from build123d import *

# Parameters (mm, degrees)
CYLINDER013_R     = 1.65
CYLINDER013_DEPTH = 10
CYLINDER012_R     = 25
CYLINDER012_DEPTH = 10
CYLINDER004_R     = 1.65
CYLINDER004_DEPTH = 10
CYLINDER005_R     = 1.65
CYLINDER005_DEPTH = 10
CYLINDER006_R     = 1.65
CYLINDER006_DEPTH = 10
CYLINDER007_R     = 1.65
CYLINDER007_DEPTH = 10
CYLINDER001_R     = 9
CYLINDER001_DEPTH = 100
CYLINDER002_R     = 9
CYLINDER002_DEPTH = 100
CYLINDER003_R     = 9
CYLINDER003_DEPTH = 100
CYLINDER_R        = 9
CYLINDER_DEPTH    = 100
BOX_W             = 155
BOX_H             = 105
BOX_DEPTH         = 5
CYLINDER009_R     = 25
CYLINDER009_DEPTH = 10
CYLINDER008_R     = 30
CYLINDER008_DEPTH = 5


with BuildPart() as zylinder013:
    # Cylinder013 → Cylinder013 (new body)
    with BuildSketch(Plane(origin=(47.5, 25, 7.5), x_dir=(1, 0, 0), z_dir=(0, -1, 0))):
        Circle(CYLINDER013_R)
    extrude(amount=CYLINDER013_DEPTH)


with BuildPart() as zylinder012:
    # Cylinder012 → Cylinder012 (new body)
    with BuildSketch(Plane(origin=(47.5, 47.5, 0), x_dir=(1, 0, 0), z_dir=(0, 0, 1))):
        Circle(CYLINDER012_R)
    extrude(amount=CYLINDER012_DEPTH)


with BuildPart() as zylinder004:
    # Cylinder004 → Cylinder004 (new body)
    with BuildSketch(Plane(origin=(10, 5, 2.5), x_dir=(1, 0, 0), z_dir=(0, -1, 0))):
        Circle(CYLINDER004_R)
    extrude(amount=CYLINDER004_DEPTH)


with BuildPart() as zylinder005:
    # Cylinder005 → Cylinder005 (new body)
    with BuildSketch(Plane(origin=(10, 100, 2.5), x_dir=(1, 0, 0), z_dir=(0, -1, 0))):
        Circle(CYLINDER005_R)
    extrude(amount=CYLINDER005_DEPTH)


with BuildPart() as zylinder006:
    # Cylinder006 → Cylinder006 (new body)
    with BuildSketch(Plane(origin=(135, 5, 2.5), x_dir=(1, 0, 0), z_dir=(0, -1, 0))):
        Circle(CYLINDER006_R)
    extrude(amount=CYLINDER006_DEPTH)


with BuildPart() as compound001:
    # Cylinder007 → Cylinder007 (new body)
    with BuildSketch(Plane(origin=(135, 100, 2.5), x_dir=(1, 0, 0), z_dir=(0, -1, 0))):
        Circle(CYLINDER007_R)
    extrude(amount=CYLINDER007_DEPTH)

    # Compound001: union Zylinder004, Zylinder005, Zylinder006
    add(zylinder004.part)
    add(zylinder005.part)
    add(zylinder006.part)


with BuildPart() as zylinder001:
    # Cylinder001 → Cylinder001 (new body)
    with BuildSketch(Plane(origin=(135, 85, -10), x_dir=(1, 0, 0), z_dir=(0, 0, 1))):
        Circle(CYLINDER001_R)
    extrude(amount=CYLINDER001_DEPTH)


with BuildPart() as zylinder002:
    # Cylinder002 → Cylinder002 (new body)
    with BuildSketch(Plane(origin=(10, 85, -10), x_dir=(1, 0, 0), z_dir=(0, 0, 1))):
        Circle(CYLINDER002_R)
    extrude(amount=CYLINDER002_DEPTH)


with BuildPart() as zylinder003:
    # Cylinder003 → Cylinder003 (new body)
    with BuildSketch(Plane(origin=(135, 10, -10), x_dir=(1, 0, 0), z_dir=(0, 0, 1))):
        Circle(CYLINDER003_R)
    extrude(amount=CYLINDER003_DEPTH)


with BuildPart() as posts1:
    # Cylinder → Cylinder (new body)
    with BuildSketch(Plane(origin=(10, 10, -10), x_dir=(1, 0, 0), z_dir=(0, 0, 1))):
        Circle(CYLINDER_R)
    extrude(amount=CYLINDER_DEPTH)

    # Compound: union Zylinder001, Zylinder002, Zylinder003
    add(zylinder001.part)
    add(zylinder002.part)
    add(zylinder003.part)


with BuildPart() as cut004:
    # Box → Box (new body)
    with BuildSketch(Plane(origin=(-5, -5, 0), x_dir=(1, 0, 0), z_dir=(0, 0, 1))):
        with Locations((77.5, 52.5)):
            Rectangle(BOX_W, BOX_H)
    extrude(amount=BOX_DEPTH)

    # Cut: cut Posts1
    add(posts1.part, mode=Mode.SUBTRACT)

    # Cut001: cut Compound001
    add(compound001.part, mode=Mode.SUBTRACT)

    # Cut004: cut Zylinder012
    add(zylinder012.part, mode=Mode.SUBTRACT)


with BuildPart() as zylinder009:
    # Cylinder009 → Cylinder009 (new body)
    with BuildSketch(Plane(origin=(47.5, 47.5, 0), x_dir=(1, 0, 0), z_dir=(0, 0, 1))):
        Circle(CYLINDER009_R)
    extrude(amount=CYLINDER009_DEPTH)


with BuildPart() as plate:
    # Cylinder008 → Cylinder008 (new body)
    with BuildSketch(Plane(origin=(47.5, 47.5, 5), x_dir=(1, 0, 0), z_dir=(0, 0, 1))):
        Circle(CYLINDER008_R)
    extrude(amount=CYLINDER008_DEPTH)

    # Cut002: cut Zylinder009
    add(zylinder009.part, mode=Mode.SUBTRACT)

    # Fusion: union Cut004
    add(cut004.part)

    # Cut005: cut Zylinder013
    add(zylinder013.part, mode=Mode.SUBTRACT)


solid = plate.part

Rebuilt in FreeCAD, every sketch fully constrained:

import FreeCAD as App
import Part
import Sketcher

V = App.Vector
Q = App.Units.Quantity

doc = App.newDocument("Part")
body = doc.addObject("PartDesign::Body", "Body")

# Sketch on XZ plane
sketch1 = body.newObject("Sketcher::SketchObject", "Sketch")
sketch1.AttachmentSupport = (doc.getObject("XZ_Plane"), [""])
sketch1.MapMode = "FlatFace"
sketch1.AttachmentOffset = App.Placement(V(0, 0, -25), App.Rotation())
sketch1.addGeometry(Part.Circle(V(47.5, 7.5, 0), V(0, 0, 1), 1.65), False)
sketch1.addConstraint([
    Sketcher.Constraint("Diameter", 0, Q("3.3 mm")),
    Sketcher.Constraint("DistanceX", -1, 1, 0, 3, Q("47.5 mm")),
    Sketcher.Constraint("DistanceY", -1, 1, 0, 3, Q("7.5 mm")),
])
pad1 = body.newObject("PartDesign::Pad", "Pad")
pad1.Profile = sketch1
pad1.Length = 10
body2 = doc.addObject("PartDesign::Body", "Body001")

# Sketch on XY plane
sketch2 = body2.newObject("Sketcher::SketchObject", "Sketch001")
sketch2.AttachmentSupport = (doc.getObject("XY_Plane001"), [""])
sketch2.MapMode = "FlatFace"
sketch2.addGeometry(Part.Circle(V(47.5, 47.5, 0), V(0, 0, 1), 25), False)
sketch2.addConstraint([
    Sketcher.Constraint("Diameter", 0, Q("50 mm")),
    Sketcher.Constraint("DistanceX", -1, 1, 0, 3, Q("47.5 mm")),
    Sketcher.Constraint("DistanceY", -1, 1, 0, 3, Q("47.5 mm")),
])
pad2 = body2.newObject("PartDesign::Pad", "Pad001")
pad2.Profile = sketch2
pad2.Length = 10
body3 = doc.addObject("PartDesign::Body", "Body002")

# Sketch on XZ plane
sketch3 = body3.newObject("Sketcher::SketchObject", "Sketch002")
sketch3.AttachmentSupport = (doc.getObject("XZ_Plane002"), [""])
sketch3.MapMode = "FlatFace"
sketch3.AttachmentOffset = App.Placement(V(0, 0, -5), App.Rotation())
sketch3.addGeometry(Part.Circle(V(10, 2.5, 0), V(0, 0, 1), 1.65), False)
sketch3.addConstraint([
    Sketcher.Constraint("Diameter", 0, Q("3.3 mm")),
    Sketcher.Constraint("DistanceX", -1, 1, 0, 3, Q("10 mm")),
    Sketcher.Constraint("DistanceY", -1, 1, 0, 3, Q("2.5 mm")),
])
pad3 = body3.newObject("PartDesign::Pad", "Pad002")
pad3.Profile = sketch3
pad3.Length = 10
body4 = doc.addObject("PartDesign::Body", "Body003")

# Sketch on XZ plane
sketch4 = body4.newObject("Sketcher::SketchObject", "Sketch003")
sketch4.AttachmentSupport = (doc.getObject("XZ_Plane003"), [""])
sketch4.MapMode = "FlatFace"
sketch4.AttachmentOffset = App.Placement(V(0, 0, -100), App.Rotation())
sketch4.addGeometry(Part.Circle(V(10, 2.5, 0), V(0, 0, 1), 1.65), False)
sketch4.addConstraint([
    Sketcher.Constraint("Diameter", 0, Q("3.3 mm")),
    Sketcher.Constraint("DistanceX", -1, 1, 0, 3, Q("10 mm")),
    Sketcher.Constraint("DistanceY", -1, 1, 0, 3, Q("2.5 mm")),
])
pad4 = body4.newObject("PartDesign::Pad", "Pad003")
pad4.Profile = sketch4
pad4.Length = 10
body5 = doc.addObject("PartDesign::Body", "Body004")

# Sketch on XZ plane
sketch5 = body5.newObject("Sketcher::SketchObject", "Sketch004")
sketch5.AttachmentSupport = (doc.getObject("XZ_Plane004"), [""])
sketch5.MapMode = "FlatFace"
sketch5.AttachmentOffset = App.Placement(V(0, 0, -5), App.Rotation())
sketch5.addGeometry(Part.Circle(V(135, 2.5, 0), V(0, 0, 1), 1.65), False)
sketch5.addConstraint([
    Sketcher.Constraint("Diameter", 0, Q("3.3 mm")),
    Sketcher.Constraint("DistanceX", -1, 1, 0, 3, Q("135 mm")),
    Sketcher.Constraint("DistanceY", -1, 1, 0, 3, Q("2.5 mm")),
])
pad5 = body5.newObject("PartDesign::Pad", "Pad004")
pad5.Profile = sketch5
pad5.Length = 10
body6 = doc.addObject("PartDesign::Body", "Body005")
body6.AllowCompound = True

# Sketch on XZ plane
sketch6 = body6.newObject("Sketcher::SketchObject", "Sketch005")
sketch6.AttachmentSupport = (doc.getObject("XZ_Plane005"), [""])
sketch6.MapMode = "FlatFace"
sketch6.AttachmentOffset = App.Placement(V(0, 0, -100), App.Rotation())
sketch6.addGeometry(Part.Circle(V(135, 2.5, 0), V(0, 0, 1), 1.65), False)
sketch6.addConstraint([
    Sketcher.Constraint("Diameter", 0, Q("3.3 mm")),
    Sketcher.Constraint("DistanceX", -1, 1, 0, 3, Q("135 mm")),
    Sketcher.Constraint("DistanceY", -1, 1, 0, 3, Q("2.5 mm")),
])
pad6 = body6.newObject("PartDesign::Pad", "Pad005")
pad6.Profile = sketch6
pad6.Length = 10
doc.recompute()

boolean = body6.newObject("PartDesign::Boolean", "Boolean")
boolean.Type = "Fuse"
boolean.addObjects([body3])
doc.recompute()

boolean2 = body6.newObject("PartDesign::Boolean", "Boolean001")
boolean2.Type = "Fuse"
boolean2.addObjects([body4])
doc.recompute()

boolean3 = body6.newObject("PartDesign::Boolean", "Boolean002")
boolean3.Type = "Fuse"
boolean3.addObjects([body5])
body7 = doc.addObject("PartDesign::Body", "Body006")

# Sketch on XY plane
sketch7 = body7.newObject("Sketcher::SketchObject", "Sketch006")
sketch7.AttachmentSupport = (doc.getObject("XY_Plane006"), [""])
sketch7.MapMode = "FlatFace"
sketch7.AttachmentOffset = App.Placement(V(0, 0, -10), App.Rotation())
sketch7.addGeometry(Part.Circle(V(135, 85, 0), V(0, 0, 1), 9), False)
sketch7.addConstraint([
    Sketcher.Constraint("Diameter", 0, Q("18 mm")),
    Sketcher.Constraint("DistanceX", -1, 1, 0, 3, Q("135 mm")),
    Sketcher.Constraint("DistanceY", -1, 1, 0, 3, Q("85 mm")),
])
pad7 = body7.newObject("PartDesign::Pad", "Pad006")
pad7.Profile = sketch7
pad7.Length = 100
body8 = doc.addObject("PartDesign::Body", "Body007")

# Sketch on XY plane
sketch8 = body8.newObject("Sketcher::SketchObject", "Sketch007")
sketch8.AttachmentSupport = (doc.getObject("XY_Plane007"), [""])
sketch8.MapMode = "FlatFace"
sketch8.AttachmentOffset = App.Placement(V(0, 0, -10), App.Rotation())
sketch8.addGeometry(Part.Circle(V(10, 85, 0), V(0, 0, 1), 9), False)
sketch8.addConstraint([
    Sketcher.Constraint("Diameter", 0, Q("18 mm")),
    Sketcher.Constraint("DistanceX", -1, 1, 0, 3, Q("10 mm")),
    Sketcher.Constraint("DistanceY", -1, 1, 0, 3, Q("85 mm")),
])
pad8 = body8.newObject("PartDesign::Pad", "Pad007")
pad8.Profile = sketch8
pad8.Length = 100
body9 = doc.addObject("PartDesign::Body", "Body008")

# Sketch on XY plane
sketch9 = body9.newObject("Sketcher::SketchObject", "Sketch008")
sketch9.AttachmentSupport = (doc.getObject("XY_Plane008"), [""])
sketch9.MapMode = "FlatFace"
sketch9.AttachmentOffset = App.Placement(V(0, 0, -10), App.Rotation())
sketch9.addGeometry(Part.Circle(V(135, 10, 0), V(0, 0, 1), 9), False)
sketch9.addConstraint([
    Sketcher.Constraint("Diameter", 0, Q("18 mm")),
    Sketcher.Constraint("DistanceX", -1, 1, 0, 3, Q("135 mm")),
    Sketcher.Constraint("DistanceY", -1, 1, 0, 3, Q("10 mm")),
])
pad9 = body9.newObject("PartDesign::Pad", "Pad008")
pad9.Profile = sketch9
pad9.Length = 100
body10 = doc.addObject("PartDesign::Body", "Body009")
body10.AllowCompound = True

# Sketch on XY plane
sketch10 = body10.newObject("Sketcher::SketchObject", "Sketch009")
sketch10.AttachmentSupport = (doc.getObject("XY_Plane009"), [""])
sketch10.MapMode = "FlatFace"
sketch10.AttachmentOffset = App.Placement(V(0, 0, -10), App.Rotation())
sketch10.addGeometry(Part.Circle(V(10, 10, 0), V(0, 0, 1), 9), False)
sketch10.addConstraint([
    Sketcher.Constraint("Diameter", 0, Q("18 mm")),
    Sketcher.Constraint("DistanceX", -1, 1, 0, 3, Q("10 mm")),
    Sketcher.Constraint("DistanceY", -1, 1, 0, 3, Q("10 mm")),
])
pad10 = body10.newObject("PartDesign::Pad", "Pad009")
pad10.Profile = sketch10
pad10.Length = 100
doc.recompute()

boolean4 = body10.newObject("PartDesign::Boolean", "Boolean003")
boolean4.Type = "Fuse"
boolean4.addObjects([body7])
doc.recompute()

boolean5 = body10.newObject("PartDesign::Boolean", "Boolean004")
boolean5.Type = "Fuse"
boolean5.addObjects([body8])
doc.recompute()

boolean6 = body10.newObject("PartDesign::Boolean", "Boolean005")
boolean6.Type = "Fuse"
boolean6.addObjects([body9])
body11 = doc.addObject("PartDesign::Body", "Body010")

# Sketch on XY plane
sketch11 = body11.newObject("Sketcher::SketchObject", "Sketch010")
sketch11.AttachmentSupport = (doc.getObject("XY_Plane010"), [""])
sketch11.MapMode = "FlatFace"
sketch11.addGeometry([
    Part.LineSegment(V(-5, 100, 0), V(-5, -5, 0)),
    Part.LineSegment(V(-5, -5, 0), V(150, -5, 0)),
    Part.LineSegment(V(150, -5, 0), V(150, 100, 0)),
    Part.LineSegment(V(150, 100, 0), V(-5, 100, 0)),
], False)
sketch11.addConstraint([
    Sketcher.Constraint("Coincident", 0, 2, 1, 1),
    Sketcher.Constraint("Coincident", 1, 2, 2, 1),
    Sketcher.Constraint("Coincident", 2, 2, 3, 1),
    Sketcher.Constraint("Coincident", 3, 2, 0, 1),
    Sketcher.Constraint("Vertical", 0),
    Sketcher.Constraint("Horizontal", 1),
    Sketcher.Constraint("Vertical", 2),
    Sketcher.Constraint("Horizontal", 3),
    Sketcher.Constraint("DistanceX", 1, 1, 1, 2, Q("155 mm")),
    Sketcher.Constraint("DistanceY", 0, 2, 0, 1, Q("105 mm")),
    Sketcher.Constraint("DistanceX", 0, 2, -1, 1, Q("5 mm")),
    Sketcher.Constraint("DistanceY", 0, 2, -1, 1, Q("5 mm")),
])
pad11 = body11.newObject("PartDesign::Pad", "Pad010")
pad11.Profile = sketch11
pad11.Length = 5
doc.recompute()

boolean7 = body11.newObject("PartDesign::Boolean", "Boolean006")
boolean7.Type = "Cut"
boolean7.addObjects([body10])
doc.recompute()

boolean8 = body11.newObject("PartDesign::Boolean", "Boolean007")
boolean8.Type = "Cut"
boolean8.addObjects([body6])
doc.recompute()

boolean9 = body11.newObject("PartDesign::Boolean", "Boolean008")
boolean9.Type = "Cut"
boolean9.addObjects([body2])
body12 = doc.addObject("PartDesign::Body", "Body011")

# Sketch on XY plane
sketch12 = body12.newObject("Sketcher::SketchObject", "Sketch011")
sketch12.AttachmentSupport = (doc.getObject("XY_Plane011"), [""])
sketch12.MapMode = "FlatFace"
sketch12.addGeometry(Part.Circle(V(47.5, 47.5, 0), V(0, 0, 1), 25), False)
sketch12.addConstraint([
    Sketcher.Constraint("Diameter", 0, Q("50 mm")),
    Sketcher.Constraint("DistanceX", -1, 1, 0, 3, Q("47.5 mm")),
    Sketcher.Constraint("DistanceY", -1, 1, 0, 3, Q("47.5 mm")),
])
pad12 = body12.newObject("PartDesign::Pad", "Pad011")
pad12.Profile = sketch12
pad12.Length = 10
body13 = doc.addObject("PartDesign::Body", "Body012")

# Sketch on XY plane
sketch13 = body13.newObject("Sketcher::SketchObject", "Sketch012")
sketch13.AttachmentSupport = (doc.getObject("XY_Plane012"), [""])
sketch13.MapMode = "FlatFace"
sketch13.AttachmentOffset = App.Placement(V(0, 0, 5), App.Rotation())
sketch13.addGeometry(Part.Circle(V(47.5, 47.5, 0), V(0, 0, 1), 30), False)
sketch13.addConstraint([
    Sketcher.Constraint("Diameter", 0, Q("60 mm")),
    Sketcher.Constraint("DistanceX", -1, 1, 0, 3, Q("47.5 mm")),
    Sketcher.Constraint("DistanceY", -1, 1, 0, 3, Q("47.5 mm")),
])
pad13 = body13.newObject("PartDesign::Pad", "Pad012")
pad13.Profile = sketch13
pad13.Length = 5
doc.recompute()

boolean10 = body13.newObject("PartDesign::Boolean", "Boolean009")
boolean10.Type = "Cut"
boolean10.addObjects([body12])
doc.recompute()

boolean11 = body13.newObject("PartDesign::Boolean", "Boolean010")
boolean11.Type = "Fuse"
boolean11.addObjects([body11])
doc.recompute()

boolean12 = body13.newObject("PartDesign::Boolean", "Boolean011")
boolean12.Type = "Cut"
boolean12.addObjects([body])

doc.recompute()
